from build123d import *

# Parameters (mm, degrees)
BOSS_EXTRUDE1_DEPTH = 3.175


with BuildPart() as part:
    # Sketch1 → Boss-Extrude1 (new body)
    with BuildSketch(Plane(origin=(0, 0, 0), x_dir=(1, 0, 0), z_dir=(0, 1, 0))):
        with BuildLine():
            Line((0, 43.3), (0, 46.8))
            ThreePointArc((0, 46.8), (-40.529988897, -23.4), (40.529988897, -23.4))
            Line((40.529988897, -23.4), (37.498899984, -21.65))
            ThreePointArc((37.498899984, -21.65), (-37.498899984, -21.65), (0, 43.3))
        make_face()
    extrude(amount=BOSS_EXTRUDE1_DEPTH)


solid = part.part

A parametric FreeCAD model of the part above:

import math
import FreeCAD as App
import Part
import Sketcher
Q = App.Units.Quantity

doc = App.newDocument("Part")
body = doc.addObject("PartDesign::Body", "Body")

sketch1 = doc.addObject("Sketcher::SketchObject", "Sketch")
body.addObject(sketch1)
sketch1.AttachmentSupport = (doc.XZ_Plane, [""])
sketch1.MapMode = "FlatFace"
sketch1.addGeometry(Part.LineSegment(App.Vector(0, -43.3, 0), App.Vector(0, -46.8, 0)), False)
sketch1.addGeometry(Part.ArcOfCircle(Part.Circle(App.Vector(0, 0, 0), App.Vector(0, 0, 1), 46.8), math.radians(30), math.radians(270)), False)
sketch1.addGeometry(Part.LineSegment(App.Vector(40.5, 23.4, 0), App.Vector(37.5, 21.6, 0)), False)
sketch1.addGeometry(Part.ArcOfCircle(Part.Circle(App.Vector(0, 0, 0), App.Vector(0, 0, 1), 43.3), math.radians(30), math.radians(270)), False)
sketch1.addConstraint(Sketcher.Constraint("Coincident", 0, 2, 1, 2))
sketch1.addConstraint(Sketcher.Constraint("Coincident", 1, 1, 2, 1))
sketch1.addConstraint(Sketcher.Constraint("Coincident", 2, 2, 3, 1))
sketch1.addConstraint(Sketcher.Constraint("Coincident", 3, 2, 0, 1))
sketch1.addConstraint(Sketcher.Constraint("Vertical", 0))
sketch1.addConstraint(Sketcher.Constraint("Coincident", 1, 3, -1, 1))
sketch1.addConstraint(Sketcher.Constraint("Coincident", 3, 3, -1, 1))
sketch1.addConstraint(Sketcher.Constraint("PointOnObject", 0, 2, -2))
sketch1.addConstraint(Sketcher.Constraint("Radius", 1, 46.8))
sketch1.addConstraint(Sketcher.Constraint("Radius", 3, 43.3))
sketch1.addConstraint(Sketcher.Constraint("Angle", 2, Q("-150 deg")))
sketch1.addConstraint(Sketcher.Constraint("DistanceY", -1, 1, 1, 1, 23.4))
pad1 = doc.addObject("PartDesign::Pad", "Pad")
body.addObject(pad1)
pad1.Profile = sketch1
pad1.Length = 3.175
pad1.Reversed = True

doc.recompute()
